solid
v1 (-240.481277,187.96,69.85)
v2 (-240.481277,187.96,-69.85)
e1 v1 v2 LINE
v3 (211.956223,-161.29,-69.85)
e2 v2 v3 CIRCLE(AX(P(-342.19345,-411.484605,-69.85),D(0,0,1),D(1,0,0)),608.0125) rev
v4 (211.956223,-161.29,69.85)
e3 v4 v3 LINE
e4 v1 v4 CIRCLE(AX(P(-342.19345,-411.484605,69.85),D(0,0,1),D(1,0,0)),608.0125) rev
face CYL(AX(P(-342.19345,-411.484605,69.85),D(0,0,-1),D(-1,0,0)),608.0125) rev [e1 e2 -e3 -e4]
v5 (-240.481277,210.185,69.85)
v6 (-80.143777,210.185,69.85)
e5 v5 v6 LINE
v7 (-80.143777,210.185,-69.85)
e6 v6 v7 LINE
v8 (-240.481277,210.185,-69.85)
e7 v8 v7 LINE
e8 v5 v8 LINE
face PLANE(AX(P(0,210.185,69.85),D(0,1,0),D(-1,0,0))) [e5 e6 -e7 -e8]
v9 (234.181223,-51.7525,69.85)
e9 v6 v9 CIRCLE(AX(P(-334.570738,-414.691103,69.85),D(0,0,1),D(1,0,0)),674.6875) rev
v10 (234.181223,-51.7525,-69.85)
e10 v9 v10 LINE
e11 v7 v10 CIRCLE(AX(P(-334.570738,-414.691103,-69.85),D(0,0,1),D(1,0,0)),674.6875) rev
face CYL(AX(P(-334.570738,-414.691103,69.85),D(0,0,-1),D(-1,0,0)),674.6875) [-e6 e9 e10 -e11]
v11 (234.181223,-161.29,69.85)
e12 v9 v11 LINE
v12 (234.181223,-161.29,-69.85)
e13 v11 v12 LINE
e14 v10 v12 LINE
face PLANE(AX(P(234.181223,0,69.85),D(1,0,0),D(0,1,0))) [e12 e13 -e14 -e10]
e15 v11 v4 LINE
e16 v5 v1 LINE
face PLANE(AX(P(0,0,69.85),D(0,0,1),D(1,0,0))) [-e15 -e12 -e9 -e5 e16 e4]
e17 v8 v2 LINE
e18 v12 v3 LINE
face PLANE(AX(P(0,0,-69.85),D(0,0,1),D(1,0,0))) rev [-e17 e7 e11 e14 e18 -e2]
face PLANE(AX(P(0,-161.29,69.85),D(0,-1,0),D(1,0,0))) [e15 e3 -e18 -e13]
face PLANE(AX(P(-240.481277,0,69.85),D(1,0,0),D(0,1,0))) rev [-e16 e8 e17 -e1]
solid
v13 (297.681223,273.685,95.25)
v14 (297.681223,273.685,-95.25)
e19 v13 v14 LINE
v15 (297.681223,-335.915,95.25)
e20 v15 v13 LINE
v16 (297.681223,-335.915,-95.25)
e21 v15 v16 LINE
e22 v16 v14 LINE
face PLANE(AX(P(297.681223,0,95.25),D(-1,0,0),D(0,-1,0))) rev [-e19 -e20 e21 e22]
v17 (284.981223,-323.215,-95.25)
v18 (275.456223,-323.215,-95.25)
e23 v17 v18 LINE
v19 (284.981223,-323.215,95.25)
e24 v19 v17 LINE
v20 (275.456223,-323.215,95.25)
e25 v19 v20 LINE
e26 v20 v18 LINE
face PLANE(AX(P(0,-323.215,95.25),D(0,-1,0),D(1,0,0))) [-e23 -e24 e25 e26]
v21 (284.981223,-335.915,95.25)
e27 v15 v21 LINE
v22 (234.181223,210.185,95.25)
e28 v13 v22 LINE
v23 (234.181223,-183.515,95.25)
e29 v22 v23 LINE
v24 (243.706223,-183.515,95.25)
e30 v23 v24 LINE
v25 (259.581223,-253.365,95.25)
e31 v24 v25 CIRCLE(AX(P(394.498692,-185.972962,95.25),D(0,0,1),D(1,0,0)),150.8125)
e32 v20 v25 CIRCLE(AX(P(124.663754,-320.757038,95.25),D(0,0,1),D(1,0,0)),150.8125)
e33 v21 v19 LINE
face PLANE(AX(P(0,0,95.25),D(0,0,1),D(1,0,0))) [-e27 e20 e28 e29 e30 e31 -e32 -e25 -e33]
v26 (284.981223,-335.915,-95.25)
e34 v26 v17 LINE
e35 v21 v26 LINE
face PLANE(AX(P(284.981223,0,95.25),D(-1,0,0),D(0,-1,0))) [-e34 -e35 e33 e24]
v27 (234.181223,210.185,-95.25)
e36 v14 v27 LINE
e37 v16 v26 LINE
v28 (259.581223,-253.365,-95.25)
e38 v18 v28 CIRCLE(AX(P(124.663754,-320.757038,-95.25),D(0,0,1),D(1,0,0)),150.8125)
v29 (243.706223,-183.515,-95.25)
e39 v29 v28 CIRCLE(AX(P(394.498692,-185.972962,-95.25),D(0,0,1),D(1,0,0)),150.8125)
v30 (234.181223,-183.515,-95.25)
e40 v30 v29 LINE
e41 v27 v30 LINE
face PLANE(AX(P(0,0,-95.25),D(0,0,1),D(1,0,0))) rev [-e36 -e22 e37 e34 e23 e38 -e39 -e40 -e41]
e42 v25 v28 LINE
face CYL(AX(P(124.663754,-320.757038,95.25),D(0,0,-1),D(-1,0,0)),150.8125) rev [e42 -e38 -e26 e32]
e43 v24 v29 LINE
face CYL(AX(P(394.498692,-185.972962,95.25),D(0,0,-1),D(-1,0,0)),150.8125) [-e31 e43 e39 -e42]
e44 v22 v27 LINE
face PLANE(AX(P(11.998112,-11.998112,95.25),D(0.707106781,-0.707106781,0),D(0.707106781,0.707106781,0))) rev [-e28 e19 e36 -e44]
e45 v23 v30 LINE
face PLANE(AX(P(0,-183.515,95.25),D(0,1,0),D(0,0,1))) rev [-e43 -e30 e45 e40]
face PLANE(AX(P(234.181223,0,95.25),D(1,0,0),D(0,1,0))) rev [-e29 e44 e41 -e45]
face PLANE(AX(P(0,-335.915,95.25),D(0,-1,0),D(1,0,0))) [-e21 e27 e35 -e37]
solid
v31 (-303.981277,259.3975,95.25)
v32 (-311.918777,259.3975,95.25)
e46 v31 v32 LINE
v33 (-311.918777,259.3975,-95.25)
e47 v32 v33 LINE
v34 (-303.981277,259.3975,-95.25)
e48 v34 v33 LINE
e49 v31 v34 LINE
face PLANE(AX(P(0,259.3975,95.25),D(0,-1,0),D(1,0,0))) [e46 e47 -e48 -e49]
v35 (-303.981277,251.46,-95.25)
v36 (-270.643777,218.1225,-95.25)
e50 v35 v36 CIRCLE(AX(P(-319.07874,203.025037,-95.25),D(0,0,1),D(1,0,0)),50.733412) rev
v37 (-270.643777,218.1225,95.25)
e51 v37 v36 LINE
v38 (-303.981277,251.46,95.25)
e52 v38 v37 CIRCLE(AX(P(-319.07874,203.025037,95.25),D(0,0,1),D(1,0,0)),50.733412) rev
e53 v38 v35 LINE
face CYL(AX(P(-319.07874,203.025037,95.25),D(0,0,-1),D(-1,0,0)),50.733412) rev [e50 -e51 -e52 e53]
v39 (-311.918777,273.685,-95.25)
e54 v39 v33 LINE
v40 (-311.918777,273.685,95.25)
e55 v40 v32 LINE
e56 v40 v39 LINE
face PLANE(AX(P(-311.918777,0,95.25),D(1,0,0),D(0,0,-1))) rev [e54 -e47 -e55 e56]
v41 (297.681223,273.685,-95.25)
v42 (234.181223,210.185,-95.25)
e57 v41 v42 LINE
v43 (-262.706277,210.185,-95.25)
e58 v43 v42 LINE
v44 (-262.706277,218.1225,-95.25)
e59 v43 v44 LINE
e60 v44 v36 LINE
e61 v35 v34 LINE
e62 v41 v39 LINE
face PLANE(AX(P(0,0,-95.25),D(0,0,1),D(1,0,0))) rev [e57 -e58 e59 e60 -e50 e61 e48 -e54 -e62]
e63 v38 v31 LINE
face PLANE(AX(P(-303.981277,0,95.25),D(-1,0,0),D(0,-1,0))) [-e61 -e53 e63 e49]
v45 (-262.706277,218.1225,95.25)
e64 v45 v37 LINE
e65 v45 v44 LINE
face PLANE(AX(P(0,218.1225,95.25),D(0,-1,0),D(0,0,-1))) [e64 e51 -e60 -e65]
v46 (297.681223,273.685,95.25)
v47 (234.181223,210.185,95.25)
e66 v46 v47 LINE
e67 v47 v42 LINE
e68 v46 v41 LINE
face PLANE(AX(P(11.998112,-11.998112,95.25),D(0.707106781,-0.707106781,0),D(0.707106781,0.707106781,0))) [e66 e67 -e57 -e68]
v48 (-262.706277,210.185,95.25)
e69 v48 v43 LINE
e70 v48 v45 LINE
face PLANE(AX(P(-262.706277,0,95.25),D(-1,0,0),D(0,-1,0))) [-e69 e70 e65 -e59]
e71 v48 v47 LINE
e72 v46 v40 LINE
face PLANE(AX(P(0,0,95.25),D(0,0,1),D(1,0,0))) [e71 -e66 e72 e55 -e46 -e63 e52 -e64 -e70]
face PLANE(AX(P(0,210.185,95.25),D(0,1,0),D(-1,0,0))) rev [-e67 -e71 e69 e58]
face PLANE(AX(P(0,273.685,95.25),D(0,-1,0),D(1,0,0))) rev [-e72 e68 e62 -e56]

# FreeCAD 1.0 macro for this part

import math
import FreeCAD as App
import Part
import Sketcher

V = App.Vector
Q = App.Units.Quantity

doc = App.newDocument("Part")
body = doc.addObject("PartDesign::Body", "Body")

sketch1 = body.newObject("Sketcher::SketchObject", "Sketch")
sketch1.AttachmentSupport = (doc.getObject("XY_Plane"), [""])
sketch1.MapMode = "FlatFace"
sketch1.addGeometry([
    Part.LineSegment(V(-303.981277, 259.3975, 0), V(-303.981277, 251.46, 0)),
    Part.ArcOfCircle(Part.Circle(V(-319.07874, 203.025037, 0), V(0, 0, 1), 50.733412), math.radians(17.312564), math.radians(72.687436)),
    Part.LineSegment(V(-270.643777, 218.1225, 0), V(-262.706277, 218.1225, 0)),
    Part.LineSegment(V(-262.706277, 218.1225, 0), V(-262.706277, 210.185, 0)),
    Part.LineSegment(V(-262.706277, 210.185, 0), V(234.181223, 210.185, 0)),
    Part.LineSegment(V(234.181223, 210.185, 0), V(297.681223, 273.685, 0)),
    Part.LineSegment(V(297.681223, 273.685, 0), V(-311.918777, 273.685, 0)),
    Part.LineSegment(V(-311.918777, 273.685, 0), V(-311.918777, 259.3975, 0)),
    Part.LineSegment(V(-311.918777, 259.3975, 0), V(-303.981277, 259.3975, 0)),
], False)
sketch1.addConstraint([
    Sketcher.Constraint("Coincident", 0, 2, 1, 2),
    Sketcher.Constraint("Coincident", 1, 1, 2, 1),
    Sketcher.Constraint("Coincident", 2, 2, 3, 1),
    Sketcher.Constraint("Coincident", 3, 2, 4, 1),
    Sketcher.Constraint("Coincident", 4, 2, 5, 1),
    Sketcher.Constraint("Coincident", 5, 2, 6, 1),
    Sketcher.Constraint("Coincident", 6, 2, 7, 1),
    Sketcher.Constraint("Coincident", 7, 2, 8, 1),
    Sketcher.Constraint("Coincident", 8, 2, 0, 1),
    Sketcher.Constraint("Vertical", 0),
    Sketcher.Constraint("Horizontal", 2),
    Sketcher.Constraint("Vertical", 3),
    Sketcher.Constraint("Horizontal", 4),
    Sketcher.Constraint("Horizontal", 6),
    Sketcher.Constraint("Vertical", 7),
    Sketcher.Constraint("Horizontal", 8),
    Sketcher.Constraint("Equal", 2, 8),
    Sketcher.Constraint("Equal", 8, 0),
    Sketcher.Constraint("Equal", 0, 3),
    Sketcher.Constraint("DistanceX", 6, 2, 6, 1, Q("24 in")),
    Sketcher.Constraint("Angle", 5, Q("45 deg")),
    Sketcher.Constraint("DistanceY", -1, 1, 0, 2, Q("9.9 in")),
    Sketcher.Constraint("DistanceX", 4, 2, 5, 2, Q("2.5 in")),
    Sketcher.Constraint("DistanceX", 2, 1, 2, 2, Q("0.3125 in")),
    Sketcher.Constraint("DistanceX", 4, 1, 4, 2, Q("19.5625 in")),
    Sketcher.Constraint("DistanceY", 7, 2, 7, 1, Q("0.5625 in")),
    Sketcher.Constraint("Radius", 1, Q("50.733412 mm")),
    Sketcher.Constraint("DistanceX", 1, 3, -1, 1, Q("319.07874 mm")),
])
pad1 = body.newObject("PartDesign::Pad", "Pad")
pad1.Profile = sketch1
pad1.Length = Q("7.5 in")
pad1.Midplane = True
body2 = doc.addObject("PartDesign::Body", "Body001")

sketch2 = body2.newObject("Sketcher::SketchObject", "Sketch001")
sketch2.AttachmentSupport = (doc.getObject("XY_Plane001"), [""])
sketch2.MapMode = "FlatFace"
sketch2.addGeometry([
    Part.ArcOfCircle(Part.Circle(V(-334.570738, -414.691103, 0), V(0, 0, 1), 674.6875), math.radians(32.543234), math.radians(67.845623)),
    Part.LineSegment(V(-80.143777, 210.185, 0), V(-240.481277, 210.185, 0)),
    Part.LineSegment(V(-240.481277, 210.185, 0), V(-240.481277, 187.96, 0)),
    Part.ArcOfCircle(Part.Circle(V(-342.19345, -411.484605, 0), V(0, 0, 1), 608.0125), math.radians(24.298835), math.radians(80.369923)),
    Part.LineSegment(V(211.956223, -161.29, 0), V(234.181223, -161.29, 0)),
    Part.LineSegment(V(234.181223, -161.29, 0), V(234.181223, -51.7525, 0)),
], False)
sketch2.addConstraint([
    Sketcher.Constraint("Coincident", 0, 2, 1, 1),
    Sketcher.Constraint("Coincident", 1, 2, 2, 1),
    Sketcher.Constraint("Coincident", 2, 2, 3, 2),
    Sketcher.Constraint("Coincident", 3, 1, 4, 1),
    Sketcher.Constraint("Coincident", 4, 2, 5, 1),
    Sketcher.Constraint("Coincident", 5, 2, 0, 1),
    Sketcher.Constraint("Horizontal", 1),
    Sketcher.Constraint("Vertical", 2),
    Sketcher.Constraint("Horizontal", 4),
    Sketcher.Constraint("Vertical", 5),
    Sketcher.Constraint("Equal", 4, 2),
    Sketcher.Constraint("Radius", 0, Q("26.5625 in")),
    Sketcher.Constraint("Radius", 3, Q("23.9375 in")),
    Sketcher.Constraint("DistanceY", -1, 1, 2, 2, Q("7.4 in")),
    Sketcher.Constraint("DistanceX", 1, 2, 1, 1, Q("6.3125 in")),
    Sketcher.Constraint("DistanceX", 4, 1, 4, 2, Q("0.875 in")),
    Sketcher.Constraint("DistanceY", 5, 1, 5, 2, Q("4.3125 in")),
    Sketcher.Constraint("DistanceY", 4, 2, -1, 1, Q("6.35 in")),
    Sketcher.Constraint("DistanceX", 2, 2, 3, 1, Q("17.8125 in")),
    Sketcher.Constraint("DistanceX", 3, 3, -1, 1, Q("342.19345 mm")),
])
pad2 = body2.newObject("PartDesign::Pad", "Pad001")
pad2.Profile = sketch2
pad2.Length = Q("5.5 in")
pad2.Midplane = True
body3 = doc.addObject("PartDesign::Body", "Body002")

sketch3 = body3.newObject("Sketcher::SketchObject", "Sketch002")
sketch3.AttachmentSupport = (doc.getObject("XY_Plane002"), [""])
sketch3.MapMode = "FlatFace"
sketch3.addGeometry([
    Part.LineSegment(V(297.681223, -335.915, 0), V(297.681223, 273.685, 0)),
    Part.LineSegment(V(297.681223, 273.685, 0), V(234.181223, 210.185, 0)),
    Part.LineSegment(V(234.181223, 210.185, 0), V(234.181223, -183.515, 0)),
    Part.LineSegment(V(234.181223, -183.515, 0), V(243.706223, -183.515, 0)),
    Part.ArcOfCircle(Part.Circle(V(394.498692, -185.972962, 0), V(0, 0, 1), 150.8125), math.radians(179.066145), math.radians(206.542388)),
    Part.ArcOfCircle(Part.Circle(V(124.663754, -320.757038, 0), V(0, 0, 1), 150.8125), math.radians(-0.933855), math.radians(26.542388)),
    Part.LineSegment(V(275.456223, -323.215, 0), V(284.981223, -323.215, 0)),
    Part.LineSegment(V(284.981223, -323.215, 0), V(284.981223, -335.915, 0)),
    Part.LineSegment(V(284.981223, -335.915, 0), V(297.681223, -335.915, 0)),
], False)
sketch3.addConstraint([
    Sketcher.Constraint("Coincident", 0, 2, 1, 1),
    Sketcher.Constraint("Coincident", 1, 2, 2, 1),
    Sketcher.Constraint("Coincident", 2, 2, 3, 1),
    Sketcher.Constraint("Coincident", 3, 2, 4, 1),
    Sketcher.Constraint("Tangent", 4, 2, 5, 2),
    Sketcher.Constraint("Coincident", 5, 1, 6, 1),
    Sketcher.Constraint("Coincident", 6, 2, 7, 1),
    Sketcher.Constraint("Coincident", 7, 2, 8, 1),
    Sketcher.Constraint("Coincident", 8, 2, 0, 1),
    Sketcher.Constraint("Vertical", 0),
    Sketcher.Constraint("Vertical", 2),
    Sketcher.Constraint("Horizontal", 3),
    Sketcher.Constraint("Horizontal", 6),
    Sketcher.Constraint("Vertical", 7),
    Sketcher.Constraint("Horizontal", 8),
    Sketcher.Constraint("Equal", 4, 5),
    Sketcher.Constraint("Equal", 3, 6),
    Sketcher.Constraint("Equal", 8, 7),
    Sketcher.Constraint("DistanceY", 0, 1, 0, 2, Q("24 in")),
    Sketcher.Constraint("DistanceX", 8, 1, 8, 2, Q("0.5 in")),
    Sketcher.Constraint("DistanceY", 2, 2, 2, 1, Q("15.5 in")),
    Sketcher.Constraint("Angle", 1, Q("-135 deg")),
    Sketcher.Constraint("Radius", 4, Q("5.9375 in")),
    Sketcher.Constraint("DistanceY", 2, 2, 0, 2, Q("18 in")),
    Sketcher.Constraint("DistanceX", 3, 1, 3, 2, Q("0.375 in")),
    Sketcher.Constraint("DistanceY", 4, 2, 3, 2, Q("2.75 in")),
    Sketcher.Constraint("DistanceY", -1, 1, 0, 2, Q("10.775 in")),
    Sketcher.Constraint("DistanceX", -1, 1, 4, 3, Q("394.498692 mm")),
])
pad3 = body3.newObject("PartDesign::Pad", "Pad002")
pad3.Profile = sketch3
pad3.Length = Q("7.5 in")
pad3.Midplane = True

doc.recompute()
